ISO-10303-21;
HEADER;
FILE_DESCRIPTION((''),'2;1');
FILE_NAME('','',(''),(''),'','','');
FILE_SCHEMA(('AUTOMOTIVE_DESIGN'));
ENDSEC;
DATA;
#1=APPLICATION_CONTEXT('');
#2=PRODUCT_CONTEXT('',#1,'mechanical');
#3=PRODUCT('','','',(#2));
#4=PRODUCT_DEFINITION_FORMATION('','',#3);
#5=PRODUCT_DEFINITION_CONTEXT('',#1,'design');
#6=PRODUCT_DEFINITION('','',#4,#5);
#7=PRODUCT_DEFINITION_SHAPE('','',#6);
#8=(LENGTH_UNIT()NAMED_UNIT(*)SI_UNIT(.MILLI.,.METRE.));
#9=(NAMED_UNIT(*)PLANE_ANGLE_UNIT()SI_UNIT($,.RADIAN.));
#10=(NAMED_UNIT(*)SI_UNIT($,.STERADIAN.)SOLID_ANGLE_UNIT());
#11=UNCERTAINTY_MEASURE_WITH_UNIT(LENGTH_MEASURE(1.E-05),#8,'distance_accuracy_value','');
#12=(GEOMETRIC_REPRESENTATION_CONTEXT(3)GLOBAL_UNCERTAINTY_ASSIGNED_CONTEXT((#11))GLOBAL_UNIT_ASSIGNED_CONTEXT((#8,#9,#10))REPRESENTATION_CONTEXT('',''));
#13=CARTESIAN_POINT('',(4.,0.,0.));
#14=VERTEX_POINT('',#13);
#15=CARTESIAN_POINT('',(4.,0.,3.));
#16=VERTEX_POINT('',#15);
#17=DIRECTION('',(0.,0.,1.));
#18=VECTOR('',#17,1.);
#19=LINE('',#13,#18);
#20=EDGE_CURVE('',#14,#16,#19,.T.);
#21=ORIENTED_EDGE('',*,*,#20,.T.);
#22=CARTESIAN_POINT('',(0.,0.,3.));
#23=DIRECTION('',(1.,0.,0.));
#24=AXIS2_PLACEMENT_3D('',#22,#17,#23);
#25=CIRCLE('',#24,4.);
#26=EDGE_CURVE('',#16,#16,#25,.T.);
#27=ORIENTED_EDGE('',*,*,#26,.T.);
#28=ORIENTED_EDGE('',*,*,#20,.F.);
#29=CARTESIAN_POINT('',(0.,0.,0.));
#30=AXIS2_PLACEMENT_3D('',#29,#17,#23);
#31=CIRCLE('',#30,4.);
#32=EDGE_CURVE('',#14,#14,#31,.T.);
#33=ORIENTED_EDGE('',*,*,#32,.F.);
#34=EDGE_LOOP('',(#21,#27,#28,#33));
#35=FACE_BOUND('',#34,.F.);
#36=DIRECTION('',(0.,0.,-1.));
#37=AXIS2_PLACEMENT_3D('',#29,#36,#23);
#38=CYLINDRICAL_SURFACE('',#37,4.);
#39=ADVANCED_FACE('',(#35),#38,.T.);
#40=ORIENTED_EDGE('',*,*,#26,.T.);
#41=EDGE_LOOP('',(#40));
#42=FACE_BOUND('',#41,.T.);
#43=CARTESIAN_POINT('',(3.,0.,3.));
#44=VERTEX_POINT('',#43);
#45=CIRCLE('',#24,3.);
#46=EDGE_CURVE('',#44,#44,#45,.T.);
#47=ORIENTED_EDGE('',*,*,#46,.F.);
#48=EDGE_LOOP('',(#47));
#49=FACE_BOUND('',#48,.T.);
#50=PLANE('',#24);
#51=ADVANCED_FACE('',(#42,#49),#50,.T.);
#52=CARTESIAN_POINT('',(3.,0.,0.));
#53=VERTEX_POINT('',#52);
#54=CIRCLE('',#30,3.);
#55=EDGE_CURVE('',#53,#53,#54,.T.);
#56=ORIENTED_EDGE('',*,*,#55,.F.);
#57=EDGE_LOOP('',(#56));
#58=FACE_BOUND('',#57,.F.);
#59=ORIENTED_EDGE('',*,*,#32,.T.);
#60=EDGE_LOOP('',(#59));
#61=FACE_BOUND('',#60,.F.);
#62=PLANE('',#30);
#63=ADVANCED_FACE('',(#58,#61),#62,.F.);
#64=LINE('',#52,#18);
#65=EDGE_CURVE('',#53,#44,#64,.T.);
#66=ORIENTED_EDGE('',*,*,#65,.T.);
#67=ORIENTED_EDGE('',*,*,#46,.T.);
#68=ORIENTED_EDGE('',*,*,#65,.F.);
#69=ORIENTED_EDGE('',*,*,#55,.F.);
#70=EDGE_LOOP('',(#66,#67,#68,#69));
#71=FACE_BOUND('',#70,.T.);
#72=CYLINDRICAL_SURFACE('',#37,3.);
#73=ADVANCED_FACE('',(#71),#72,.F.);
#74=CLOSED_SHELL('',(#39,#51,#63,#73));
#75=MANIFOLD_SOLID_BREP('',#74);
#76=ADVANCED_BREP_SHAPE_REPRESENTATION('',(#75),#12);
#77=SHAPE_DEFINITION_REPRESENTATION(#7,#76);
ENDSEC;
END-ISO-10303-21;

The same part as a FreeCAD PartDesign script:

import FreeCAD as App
import Part
import Sketcher

V = App.Vector

doc = App.newDocument("Part")
params = doc.addObject("Spreadsheet::Sheet", "Params")
for row, (alias, value) in enumerate([
    ("sketch1_diameter", "8 mm"),
    ("sketch1_diameter2", "6 mm"),
    ("pad1_length", "3 mm"),
], start=1):
    params.set(f"A{row}", alias)
    params.set(f"B{row}", "=" + value)
    params.setAlias(f"B{row}", alias)

body = doc.addObject("PartDesign::Body", "Body")

# Sketch on XY plane
sketch1 = doc.addObject("Sketcher::SketchObject", "Sketch")
body.addObject(sketch1)
sketch1.AttachmentSupport = (doc.XY_Plane, [""])
sketch1.MapMode = "FlatFace"
sketch1.addGeometry(Part.Circle(V(0, 0, 0), V(0, 0, 1), 4), False)
sketch1.addGeometry(Part.Circle(V(0, 0, 0), V(0, 0, 1), 3), False)
sketch1.addConstraint(Sketcher.Constraint("Coincident", 0, 3, -1, 1))
sketch1.addConstraint(Sketcher.Constraint("Coincident", 1, 3, -1, 1))
sketch1.addConstraint(Sketcher.Constraint("Diameter", 0, 8.0))
sketch1.addConstraint(Sketcher.Constraint("Diameter", 1, 6.0))
sketch1.setExpression("Constraints[2]", "Params.sketch1_diameter")
sketch1.setExpression("Constraints[3]", "Params.sketch1_diameter2")
pad1 = doc.addObject("PartDesign::Pad", "Pad")
body.addObject(pad1)
pad1.Profile = sketch1
pad1.setExpression("Length", "Params.pad1_length")

doc.recompute()
